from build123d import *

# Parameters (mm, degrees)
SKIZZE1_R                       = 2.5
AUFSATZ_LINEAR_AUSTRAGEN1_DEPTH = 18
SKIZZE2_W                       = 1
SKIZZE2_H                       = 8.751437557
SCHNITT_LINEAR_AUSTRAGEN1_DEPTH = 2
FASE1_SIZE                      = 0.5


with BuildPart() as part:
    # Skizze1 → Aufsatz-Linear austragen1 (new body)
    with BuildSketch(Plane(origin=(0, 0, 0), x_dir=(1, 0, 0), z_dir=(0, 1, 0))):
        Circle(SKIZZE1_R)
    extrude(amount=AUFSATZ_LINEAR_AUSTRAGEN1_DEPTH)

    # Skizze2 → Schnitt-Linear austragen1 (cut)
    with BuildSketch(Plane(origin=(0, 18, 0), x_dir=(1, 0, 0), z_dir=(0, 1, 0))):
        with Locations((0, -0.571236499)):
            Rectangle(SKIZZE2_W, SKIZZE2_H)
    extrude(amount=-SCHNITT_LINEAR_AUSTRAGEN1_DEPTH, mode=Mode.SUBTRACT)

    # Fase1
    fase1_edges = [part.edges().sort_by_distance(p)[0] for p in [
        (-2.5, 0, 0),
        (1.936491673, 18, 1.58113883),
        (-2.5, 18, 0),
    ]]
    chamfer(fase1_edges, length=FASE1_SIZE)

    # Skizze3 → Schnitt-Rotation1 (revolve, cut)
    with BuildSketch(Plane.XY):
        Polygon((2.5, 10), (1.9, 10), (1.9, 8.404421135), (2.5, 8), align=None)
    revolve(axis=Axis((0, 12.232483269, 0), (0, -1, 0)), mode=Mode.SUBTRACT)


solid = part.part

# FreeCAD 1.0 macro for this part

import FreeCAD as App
import Part
import Sketcher
from FreeCAD import Vector


def edges_at(feature, points):
    """Names of the edges that pass closest to the given points."""
    edges = feature.Shape.Edges
    near = lambda p: min(range(len(edges)), key=lambda i: edges[i].distToShape(Part.Vertex(*p))[0])
    return sorted({f"Edge{near(p) + 1}" for p in points})

doc = App.newDocument("Part")
body = doc.addObject("PartDesign::Body", "Body")

# Sketch on XZ plane
sketch1 = body.newObject("Sketcher::SketchObject", "Sketch")
sketch1.AttachmentSupport = (doc.getObject("XZ_Plane"), [""])
sketch1.MapMode = "FlatFace"
sketch1.addGeometry(Part.Circle(Vector(0, 0, 0), Vector(0, 0, 1), 2.5), False)
sketch1.addConstraint([
    Sketcher.Constraint("Coincident", 0, 3, -1, 1),
    Sketcher.Constraint("Diameter", 0, 5.0),
])
pad1 = body.newObject("PartDesign::Pad", "Pad")
pad1.Profile = sketch1
pad1.Length = 18
pad1.Reversed = True

# Sketch on XZ plane
sketch2 = body.newObject("Sketcher::SketchObject", "Sketch001")
sketch2.AttachmentSupport = (doc.getObject("XZ_Plane"), [""])
sketch2.MapMode = "FlatFace"
sketch2.AttachmentOffset = App.Placement(Vector(0, 0, -18), App.Rotation())
sketch2.addGeometry([
    Part.LineSegment(Vector(-0.5, -3.804482, 0), Vector(-0.5, 4.946955, 0)),
    Part.LineSegment(Vector(-0.5, 4.946955, 0), Vector(0.5, 4.946955, 0)),
    Part.LineSegment(Vector(0.5, 4.946955, 0), Vector(0.5, -3.804482, 0)),
    Part.LineSegment(Vector(0.5, -3.804482, 0), Vector(-0.5, -3.804482, 0)),
], False)
sketch2.addConstraint([
    Sketcher.Constraint("Coincident", 0, 2, 1, 1),
    Sketcher.Constraint("Coincident", 1, 2, 2, 1),
    Sketcher.Constraint("Coincident", 2, 2, 3, 1),
    Sketcher.Constraint("Coincident", 3, 2, 0, 1),
    Sketcher.Constraint("Vertical", 0),
    Sketcher.Constraint("Horizontal", 1),
    Sketcher.Constraint("Vertical", 2),
    Sketcher.Constraint("Horizontal", 3),
    Sketcher.Constraint("DistanceX", 1, 1, 1, 2, 1.0),
    Sketcher.Constraint("DistanceX", 0, 2, -1, 1, 0.5),
    Sketcher.Constraint("DistanceY", 0, 1, 0, 2, 8.751438),
    Sketcher.Constraint("DistanceY", -1, 1, 0, 2, 4.946955),
])
pocket1 = body.newObject("PartDesign::Pocket", "Pocket")
pocket1.Profile = sketch2
pocket1.Length = 2
pocket1.Reversed = True
doc.recompute()

chamfer = body.newObject("PartDesign::Chamfer", "Chamfer")
chamfer.Base = (pocket1, edges_at(pocket1, [(-2.5, 0, 0), (1.936, 18, 1.581), (-2.5, 18, 0)]))
chamfer.Size = 0.5

# Sketch on XY plane
sketch3 = body.newObject("Sketcher::SketchObject", "Sketch002")
sketch3.AttachmentSupport = (doc.getObject("XY_Plane"), [""])
sketch3.MapMode = "FlatFace"
sketch3.addGeometry([
    Part.LineSegment(Vector(2.5, 10, 0), Vector(1.9, 10, 0)),
    Part.LineSegment(Vector(1.9, 10, 0), Vector(1.9, 8.404421, 0)),
    Part.LineSegment(Vector(1.9, 8.404421, 0), Vector(2.5, 8, 0)),
    Part.LineSegment(Vector(2.5, 8, 0), Vector(2.5, 10, 0)),
], False)
sketch3.addConstraint([
    Sketcher.Constraint("Coincident", 0, 2, 1, 1),
    Sketcher.Constraint("Coincident", 1, 2, 2, 1),
    Sketcher.Constraint("Coincident", 2, 2, 3, 1),
    Sketcher.Constraint("Coincident", 3, 2, 0, 1),
    Sketcher.Constraint("Horizontal", 0),
    Sketcher.Constraint("Vertical", 1),
    Sketcher.Constraint("Vertical", 3),
    Sketcher.Constraint("DistanceY", 3, 1, 3, 2, 2.0),
    Sketcher.Constraint("DistanceX", 0, 2, 0, 1, 0.6),
    Sketcher.Constraint("DistanceY", -1, 1, 0, 2, 10.0),
    Sketcher.Constraint("DistanceX", -1, 1, 0, 2, 1.9),
    Sketcher.Constraint("DistanceY", 1, 2, 1, 1, 1.595579),
])
groove = body.newObject("PartDesign::Groove", "Groove")
groove.Profile = sketch3
groove.ReferenceAxis = (sketch3, ["V_Axis"])
groove.Angle = 360

doc.recompute()
